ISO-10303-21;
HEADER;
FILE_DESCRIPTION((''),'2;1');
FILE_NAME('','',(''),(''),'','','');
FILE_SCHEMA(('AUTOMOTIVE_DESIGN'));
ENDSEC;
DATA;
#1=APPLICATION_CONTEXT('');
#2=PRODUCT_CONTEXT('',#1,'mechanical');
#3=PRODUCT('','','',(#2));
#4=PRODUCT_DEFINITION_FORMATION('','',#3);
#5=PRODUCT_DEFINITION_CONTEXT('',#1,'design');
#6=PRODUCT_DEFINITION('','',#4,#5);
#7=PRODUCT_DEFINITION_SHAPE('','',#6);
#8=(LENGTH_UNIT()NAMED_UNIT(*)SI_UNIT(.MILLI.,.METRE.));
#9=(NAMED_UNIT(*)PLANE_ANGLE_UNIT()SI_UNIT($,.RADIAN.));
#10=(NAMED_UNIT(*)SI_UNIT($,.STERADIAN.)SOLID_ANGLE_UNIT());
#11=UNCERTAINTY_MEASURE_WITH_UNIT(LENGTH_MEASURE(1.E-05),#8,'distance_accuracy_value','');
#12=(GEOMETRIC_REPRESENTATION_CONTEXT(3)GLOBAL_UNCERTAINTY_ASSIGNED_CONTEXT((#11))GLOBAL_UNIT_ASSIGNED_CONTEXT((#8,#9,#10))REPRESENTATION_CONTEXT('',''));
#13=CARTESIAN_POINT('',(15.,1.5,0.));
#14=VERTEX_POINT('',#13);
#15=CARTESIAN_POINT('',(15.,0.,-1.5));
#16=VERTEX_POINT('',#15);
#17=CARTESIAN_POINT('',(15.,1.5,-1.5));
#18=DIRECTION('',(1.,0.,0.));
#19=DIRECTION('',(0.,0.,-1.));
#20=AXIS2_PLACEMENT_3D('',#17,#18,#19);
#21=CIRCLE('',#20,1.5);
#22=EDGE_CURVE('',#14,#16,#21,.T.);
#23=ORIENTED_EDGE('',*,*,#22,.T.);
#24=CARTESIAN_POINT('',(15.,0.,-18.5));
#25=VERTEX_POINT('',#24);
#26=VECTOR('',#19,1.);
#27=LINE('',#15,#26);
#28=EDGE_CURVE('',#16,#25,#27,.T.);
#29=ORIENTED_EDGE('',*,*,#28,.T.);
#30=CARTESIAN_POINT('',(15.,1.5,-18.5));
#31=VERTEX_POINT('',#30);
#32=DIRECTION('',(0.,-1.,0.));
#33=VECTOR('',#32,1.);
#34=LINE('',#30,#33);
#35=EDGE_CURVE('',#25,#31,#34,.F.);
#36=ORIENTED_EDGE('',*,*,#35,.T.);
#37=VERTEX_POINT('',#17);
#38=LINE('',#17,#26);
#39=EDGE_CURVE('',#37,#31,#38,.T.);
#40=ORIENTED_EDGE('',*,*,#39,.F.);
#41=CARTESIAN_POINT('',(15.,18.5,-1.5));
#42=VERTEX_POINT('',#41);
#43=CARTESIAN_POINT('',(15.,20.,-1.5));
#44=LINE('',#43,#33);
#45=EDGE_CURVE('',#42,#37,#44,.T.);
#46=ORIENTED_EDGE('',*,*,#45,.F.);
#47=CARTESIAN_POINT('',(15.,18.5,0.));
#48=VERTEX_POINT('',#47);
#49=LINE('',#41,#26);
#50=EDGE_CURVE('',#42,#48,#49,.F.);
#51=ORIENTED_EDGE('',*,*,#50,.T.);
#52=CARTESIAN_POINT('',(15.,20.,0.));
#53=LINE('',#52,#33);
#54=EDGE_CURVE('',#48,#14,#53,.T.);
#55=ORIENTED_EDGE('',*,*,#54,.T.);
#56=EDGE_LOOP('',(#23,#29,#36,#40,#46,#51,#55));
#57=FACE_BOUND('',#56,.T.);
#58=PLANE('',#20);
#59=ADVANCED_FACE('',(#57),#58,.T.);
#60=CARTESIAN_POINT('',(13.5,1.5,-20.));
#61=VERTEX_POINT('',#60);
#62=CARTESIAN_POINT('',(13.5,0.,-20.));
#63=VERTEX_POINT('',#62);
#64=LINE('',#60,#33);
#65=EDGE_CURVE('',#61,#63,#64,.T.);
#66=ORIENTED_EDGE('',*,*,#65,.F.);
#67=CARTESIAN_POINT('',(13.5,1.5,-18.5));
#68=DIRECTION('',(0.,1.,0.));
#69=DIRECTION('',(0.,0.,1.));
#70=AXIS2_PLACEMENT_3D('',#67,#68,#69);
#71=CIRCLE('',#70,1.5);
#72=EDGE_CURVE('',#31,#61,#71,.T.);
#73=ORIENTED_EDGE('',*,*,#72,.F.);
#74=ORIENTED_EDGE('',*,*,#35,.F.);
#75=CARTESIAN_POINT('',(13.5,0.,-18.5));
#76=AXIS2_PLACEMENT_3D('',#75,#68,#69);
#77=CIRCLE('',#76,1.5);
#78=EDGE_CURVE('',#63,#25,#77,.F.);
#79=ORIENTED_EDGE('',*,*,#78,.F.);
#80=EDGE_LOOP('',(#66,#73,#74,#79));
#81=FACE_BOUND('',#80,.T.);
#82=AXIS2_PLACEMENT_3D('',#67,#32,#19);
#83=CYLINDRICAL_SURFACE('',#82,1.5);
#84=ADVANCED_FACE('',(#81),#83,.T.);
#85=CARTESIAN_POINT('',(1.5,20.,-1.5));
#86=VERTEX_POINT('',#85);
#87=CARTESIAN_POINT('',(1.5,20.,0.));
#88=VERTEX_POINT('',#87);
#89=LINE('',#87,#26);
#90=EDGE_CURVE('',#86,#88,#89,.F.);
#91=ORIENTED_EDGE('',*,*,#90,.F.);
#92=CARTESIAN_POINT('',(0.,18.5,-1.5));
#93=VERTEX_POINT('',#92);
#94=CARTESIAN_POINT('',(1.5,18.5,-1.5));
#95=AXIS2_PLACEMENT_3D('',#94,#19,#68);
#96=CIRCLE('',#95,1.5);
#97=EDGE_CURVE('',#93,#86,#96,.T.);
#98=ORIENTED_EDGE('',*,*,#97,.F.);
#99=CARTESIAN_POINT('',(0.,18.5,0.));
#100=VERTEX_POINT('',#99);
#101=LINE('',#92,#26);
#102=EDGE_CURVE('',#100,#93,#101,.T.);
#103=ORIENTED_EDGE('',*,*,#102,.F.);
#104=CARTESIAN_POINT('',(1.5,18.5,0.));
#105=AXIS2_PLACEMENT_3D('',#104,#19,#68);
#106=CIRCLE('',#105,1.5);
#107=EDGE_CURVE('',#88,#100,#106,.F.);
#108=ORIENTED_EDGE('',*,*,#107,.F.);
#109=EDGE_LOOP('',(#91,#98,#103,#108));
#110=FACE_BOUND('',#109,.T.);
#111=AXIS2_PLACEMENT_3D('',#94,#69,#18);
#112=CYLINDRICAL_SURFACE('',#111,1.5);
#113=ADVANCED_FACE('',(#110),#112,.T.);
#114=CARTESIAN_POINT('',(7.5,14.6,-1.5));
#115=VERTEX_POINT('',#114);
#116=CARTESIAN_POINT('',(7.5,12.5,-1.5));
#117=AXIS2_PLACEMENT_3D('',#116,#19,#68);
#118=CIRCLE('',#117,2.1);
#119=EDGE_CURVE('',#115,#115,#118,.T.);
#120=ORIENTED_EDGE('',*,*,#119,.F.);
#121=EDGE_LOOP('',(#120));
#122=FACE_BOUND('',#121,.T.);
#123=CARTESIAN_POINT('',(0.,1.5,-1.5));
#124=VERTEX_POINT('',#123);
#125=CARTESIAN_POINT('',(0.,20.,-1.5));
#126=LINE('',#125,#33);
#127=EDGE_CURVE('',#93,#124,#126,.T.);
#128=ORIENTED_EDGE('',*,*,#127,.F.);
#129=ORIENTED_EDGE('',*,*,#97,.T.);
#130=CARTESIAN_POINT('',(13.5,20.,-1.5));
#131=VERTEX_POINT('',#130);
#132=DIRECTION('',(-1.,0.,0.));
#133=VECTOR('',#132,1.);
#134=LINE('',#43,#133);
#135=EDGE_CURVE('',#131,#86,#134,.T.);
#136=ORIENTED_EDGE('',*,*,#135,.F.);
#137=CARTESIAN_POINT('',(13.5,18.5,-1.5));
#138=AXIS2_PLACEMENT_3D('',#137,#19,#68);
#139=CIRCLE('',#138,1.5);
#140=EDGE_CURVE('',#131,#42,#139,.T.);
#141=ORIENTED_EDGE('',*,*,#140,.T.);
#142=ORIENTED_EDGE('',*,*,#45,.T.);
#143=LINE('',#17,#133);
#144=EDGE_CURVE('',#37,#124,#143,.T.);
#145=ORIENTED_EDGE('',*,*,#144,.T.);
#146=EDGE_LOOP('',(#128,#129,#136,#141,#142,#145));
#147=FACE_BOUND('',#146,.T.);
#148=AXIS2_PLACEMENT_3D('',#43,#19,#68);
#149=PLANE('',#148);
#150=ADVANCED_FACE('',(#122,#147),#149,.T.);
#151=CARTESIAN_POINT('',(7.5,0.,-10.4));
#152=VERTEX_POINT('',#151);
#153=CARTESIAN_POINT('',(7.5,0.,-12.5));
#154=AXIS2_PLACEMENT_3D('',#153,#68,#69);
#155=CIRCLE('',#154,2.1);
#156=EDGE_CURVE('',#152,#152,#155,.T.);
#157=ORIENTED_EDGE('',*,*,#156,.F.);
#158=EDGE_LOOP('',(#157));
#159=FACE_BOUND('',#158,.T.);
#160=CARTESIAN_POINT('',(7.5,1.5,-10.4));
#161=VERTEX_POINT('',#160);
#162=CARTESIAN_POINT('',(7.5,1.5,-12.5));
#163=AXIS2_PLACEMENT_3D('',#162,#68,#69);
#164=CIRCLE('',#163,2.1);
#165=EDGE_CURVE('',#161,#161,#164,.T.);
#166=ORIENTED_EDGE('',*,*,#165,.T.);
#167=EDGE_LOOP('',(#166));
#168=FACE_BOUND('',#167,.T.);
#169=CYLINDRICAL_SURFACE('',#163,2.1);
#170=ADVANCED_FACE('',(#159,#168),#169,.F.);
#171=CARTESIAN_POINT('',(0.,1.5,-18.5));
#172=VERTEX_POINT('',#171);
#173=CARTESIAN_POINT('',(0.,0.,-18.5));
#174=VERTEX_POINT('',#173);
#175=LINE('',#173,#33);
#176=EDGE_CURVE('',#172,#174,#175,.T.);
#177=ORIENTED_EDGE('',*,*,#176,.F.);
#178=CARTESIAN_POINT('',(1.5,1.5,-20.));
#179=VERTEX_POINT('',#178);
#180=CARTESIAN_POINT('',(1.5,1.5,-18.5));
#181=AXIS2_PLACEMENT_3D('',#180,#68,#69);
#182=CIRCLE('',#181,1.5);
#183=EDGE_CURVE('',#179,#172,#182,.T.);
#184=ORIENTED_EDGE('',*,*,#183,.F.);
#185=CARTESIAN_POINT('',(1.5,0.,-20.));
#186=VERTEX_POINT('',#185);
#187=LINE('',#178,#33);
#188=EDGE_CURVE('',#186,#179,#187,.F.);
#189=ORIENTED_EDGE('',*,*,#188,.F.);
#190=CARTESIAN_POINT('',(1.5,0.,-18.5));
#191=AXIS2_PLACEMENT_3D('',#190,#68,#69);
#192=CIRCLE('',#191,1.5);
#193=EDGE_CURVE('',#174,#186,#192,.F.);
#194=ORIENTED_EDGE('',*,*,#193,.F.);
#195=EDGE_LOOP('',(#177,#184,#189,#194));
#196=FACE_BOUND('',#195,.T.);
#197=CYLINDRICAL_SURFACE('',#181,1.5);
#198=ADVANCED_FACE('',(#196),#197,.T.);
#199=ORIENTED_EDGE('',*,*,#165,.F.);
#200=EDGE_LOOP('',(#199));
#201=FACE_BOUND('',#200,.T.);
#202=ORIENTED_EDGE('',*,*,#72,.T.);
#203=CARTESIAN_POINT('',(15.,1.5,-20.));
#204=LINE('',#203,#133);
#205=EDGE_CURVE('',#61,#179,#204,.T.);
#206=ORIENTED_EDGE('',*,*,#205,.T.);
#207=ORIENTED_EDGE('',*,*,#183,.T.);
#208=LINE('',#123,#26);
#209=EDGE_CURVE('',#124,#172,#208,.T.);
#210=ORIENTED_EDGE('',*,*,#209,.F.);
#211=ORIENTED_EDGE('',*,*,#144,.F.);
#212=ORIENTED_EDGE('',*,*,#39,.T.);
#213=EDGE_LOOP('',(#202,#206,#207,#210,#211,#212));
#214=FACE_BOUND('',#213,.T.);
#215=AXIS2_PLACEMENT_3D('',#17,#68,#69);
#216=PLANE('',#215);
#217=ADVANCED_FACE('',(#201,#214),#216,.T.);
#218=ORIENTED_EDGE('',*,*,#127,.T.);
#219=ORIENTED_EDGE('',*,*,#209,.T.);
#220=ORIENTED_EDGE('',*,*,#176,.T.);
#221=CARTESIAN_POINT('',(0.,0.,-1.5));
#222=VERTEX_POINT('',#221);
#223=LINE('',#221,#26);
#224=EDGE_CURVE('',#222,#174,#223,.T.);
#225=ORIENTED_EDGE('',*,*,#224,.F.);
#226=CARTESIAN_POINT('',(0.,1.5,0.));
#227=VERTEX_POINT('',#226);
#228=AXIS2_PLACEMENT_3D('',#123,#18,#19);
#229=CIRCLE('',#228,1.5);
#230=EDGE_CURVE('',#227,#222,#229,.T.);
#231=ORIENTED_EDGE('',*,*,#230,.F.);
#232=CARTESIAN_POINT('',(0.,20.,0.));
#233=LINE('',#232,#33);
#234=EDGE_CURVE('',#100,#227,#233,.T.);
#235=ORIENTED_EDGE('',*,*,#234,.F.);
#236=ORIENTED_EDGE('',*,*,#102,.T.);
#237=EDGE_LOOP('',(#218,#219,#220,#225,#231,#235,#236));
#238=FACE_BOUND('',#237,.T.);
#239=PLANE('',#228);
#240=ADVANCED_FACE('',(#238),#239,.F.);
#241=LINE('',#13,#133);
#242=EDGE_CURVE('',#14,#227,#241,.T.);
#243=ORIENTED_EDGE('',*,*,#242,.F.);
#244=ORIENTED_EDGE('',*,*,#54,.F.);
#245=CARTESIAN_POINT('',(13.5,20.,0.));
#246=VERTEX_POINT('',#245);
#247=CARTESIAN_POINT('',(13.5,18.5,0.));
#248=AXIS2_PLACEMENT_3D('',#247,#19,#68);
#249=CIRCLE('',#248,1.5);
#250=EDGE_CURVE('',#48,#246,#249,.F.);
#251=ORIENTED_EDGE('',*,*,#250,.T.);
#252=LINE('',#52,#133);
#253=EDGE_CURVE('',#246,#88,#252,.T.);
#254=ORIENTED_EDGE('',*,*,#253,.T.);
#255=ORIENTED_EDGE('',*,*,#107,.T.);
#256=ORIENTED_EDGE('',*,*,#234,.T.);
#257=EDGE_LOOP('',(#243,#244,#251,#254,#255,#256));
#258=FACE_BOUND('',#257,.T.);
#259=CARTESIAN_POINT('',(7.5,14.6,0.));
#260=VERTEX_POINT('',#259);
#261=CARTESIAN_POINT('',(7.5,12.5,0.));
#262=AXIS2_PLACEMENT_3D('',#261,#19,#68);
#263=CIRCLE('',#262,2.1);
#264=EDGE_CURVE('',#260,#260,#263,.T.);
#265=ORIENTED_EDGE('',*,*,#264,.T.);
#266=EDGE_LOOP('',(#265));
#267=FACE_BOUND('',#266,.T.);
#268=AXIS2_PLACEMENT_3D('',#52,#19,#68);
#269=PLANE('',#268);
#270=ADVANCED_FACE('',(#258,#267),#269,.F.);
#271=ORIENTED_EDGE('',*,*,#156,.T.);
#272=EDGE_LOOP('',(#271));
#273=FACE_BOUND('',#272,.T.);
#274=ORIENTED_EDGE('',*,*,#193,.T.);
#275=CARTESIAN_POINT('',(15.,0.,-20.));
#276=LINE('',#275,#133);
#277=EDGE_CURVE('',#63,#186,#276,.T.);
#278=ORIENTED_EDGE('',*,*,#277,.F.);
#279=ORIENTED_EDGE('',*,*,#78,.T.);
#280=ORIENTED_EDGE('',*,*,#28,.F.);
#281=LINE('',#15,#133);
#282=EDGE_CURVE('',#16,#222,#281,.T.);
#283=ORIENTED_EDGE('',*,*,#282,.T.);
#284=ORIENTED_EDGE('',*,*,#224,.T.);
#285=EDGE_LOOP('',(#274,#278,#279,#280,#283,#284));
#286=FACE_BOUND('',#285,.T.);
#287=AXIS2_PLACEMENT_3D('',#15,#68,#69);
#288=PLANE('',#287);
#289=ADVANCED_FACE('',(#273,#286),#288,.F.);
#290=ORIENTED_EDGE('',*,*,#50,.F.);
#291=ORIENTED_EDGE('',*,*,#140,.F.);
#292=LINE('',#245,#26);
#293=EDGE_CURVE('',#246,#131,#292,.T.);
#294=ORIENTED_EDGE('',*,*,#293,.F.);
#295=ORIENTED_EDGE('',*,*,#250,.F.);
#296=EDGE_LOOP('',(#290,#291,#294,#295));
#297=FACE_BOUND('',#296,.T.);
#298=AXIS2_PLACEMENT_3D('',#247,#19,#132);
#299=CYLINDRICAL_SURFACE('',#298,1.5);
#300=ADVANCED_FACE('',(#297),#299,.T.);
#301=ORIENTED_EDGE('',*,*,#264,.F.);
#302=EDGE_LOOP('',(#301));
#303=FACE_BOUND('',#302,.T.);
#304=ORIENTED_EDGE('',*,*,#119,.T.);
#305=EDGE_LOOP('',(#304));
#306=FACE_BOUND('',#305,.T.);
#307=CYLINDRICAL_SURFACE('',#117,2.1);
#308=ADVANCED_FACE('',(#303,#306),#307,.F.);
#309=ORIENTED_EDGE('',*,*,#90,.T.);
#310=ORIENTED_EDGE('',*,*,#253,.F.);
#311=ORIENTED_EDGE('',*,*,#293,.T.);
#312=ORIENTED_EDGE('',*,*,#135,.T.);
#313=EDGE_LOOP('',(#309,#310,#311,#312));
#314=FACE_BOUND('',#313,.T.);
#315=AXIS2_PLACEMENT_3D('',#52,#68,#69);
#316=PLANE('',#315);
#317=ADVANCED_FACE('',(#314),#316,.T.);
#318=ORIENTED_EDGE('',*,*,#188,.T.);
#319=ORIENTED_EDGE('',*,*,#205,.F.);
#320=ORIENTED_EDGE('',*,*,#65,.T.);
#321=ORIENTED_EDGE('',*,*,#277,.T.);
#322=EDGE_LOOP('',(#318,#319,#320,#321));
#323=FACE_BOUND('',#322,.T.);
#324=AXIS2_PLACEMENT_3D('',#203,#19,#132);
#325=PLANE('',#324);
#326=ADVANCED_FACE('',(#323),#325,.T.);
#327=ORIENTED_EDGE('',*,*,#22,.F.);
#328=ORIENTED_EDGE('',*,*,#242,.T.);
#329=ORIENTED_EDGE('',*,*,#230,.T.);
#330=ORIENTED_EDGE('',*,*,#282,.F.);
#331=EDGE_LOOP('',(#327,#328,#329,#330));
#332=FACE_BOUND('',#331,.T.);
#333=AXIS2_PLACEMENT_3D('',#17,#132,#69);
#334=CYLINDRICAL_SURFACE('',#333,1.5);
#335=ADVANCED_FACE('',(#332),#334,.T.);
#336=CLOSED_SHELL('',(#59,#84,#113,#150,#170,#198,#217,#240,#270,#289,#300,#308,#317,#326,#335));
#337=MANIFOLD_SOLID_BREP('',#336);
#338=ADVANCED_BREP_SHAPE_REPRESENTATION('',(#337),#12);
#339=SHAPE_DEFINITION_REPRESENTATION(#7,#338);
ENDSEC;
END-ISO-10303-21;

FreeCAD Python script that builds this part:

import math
import FreeCAD as App
import Part
import Sketcher
from FreeCAD import Vector


def edges_at(feature, points):
    """Names of the edges that pass closest to the given points."""
    edges = feature.Shape.Edges
    near = lambda p: min(range(len(edges)), key=lambda i: edges[i].distToShape(Part.Vertex(*p))[0])
    return sorted({f"Edge{near(p) + 1}" for p in points})

doc = App.newDocument("Part")
params = doc.addObject("Spreadsheet::Sheet", "Params")
for row, (alias, value) in enumerate([
    ("sketch1_radius", "1.5 mm"),
    ("sketch1_width", "18.5 mm"),
    ("pad1_length", "15 mm"),
    ("sketch2_diameter", "4.2 mm"),
    ("hole_diameter", "4.2 mm"),
    ("sketch3_diameter", "4.2 mm"),
    ("hole2_diameter", "4.2 mm"),
    ("fillet_radius", "1.5 mm"),
], start=1):
    params.set(f"A{row}", alias)
    params.set(f"B{row}", "=" + value)
    params.setAlias(f"B{row}", alias)

body = doc.addObject("PartDesign::Body", "Body")

sketch1 = body.newObject("Sketcher::SketchObject", "Sketch")
sketch1.AttachmentSupport = (doc.getObject("YZ_Plane"), [""])
sketch1.MapMode = "FlatFace"
sketch1.addGeometry([
    Part.LineSegment(Vector(20, 0, 0), Vector(1.5, 0, 0)),
    Part.ArcOfCircle(Part.Circle(Vector(1.5, -1.5, 0), Vector(0, 0, 1), 1.5), math.radians(90), math.radians(180)),
    Part.LineSegment(Vector(0, -1.5, 0), Vector(0, -20, 0)),
    Part.LineSegment(Vector(0, -20, 0), Vector(1.5, -20, 0)),
    Part.LineSegment(Vector(1.5, -20, 0), Vector(1.5, -1.5, 0)),
    Part.LineSegment(Vector(1.5, -1.5, 0), Vector(20, -1.5, 0)),
    Part.LineSegment(Vector(20, -1.5, 0), Vector(20, 0, 0)),
], False)
sketch1.addConstraint([
    Sketcher.Constraint("Tangent", 0, 2, 1, 1),
    Sketcher.Constraint("Tangent", 1, 2, 2, 1),
    Sketcher.Constraint("Coincident", 2, 2, 3, 1),
    Sketcher.Constraint("Coincident", 3, 2, 4, 1),
    Sketcher.Constraint("Coincident", 4, 2, 5, 1),
    Sketcher.Constraint("Coincident", 5, 2, 6, 1),
    Sketcher.Constraint("Coincident", 6, 2, 0, 1),
    Sketcher.Constraint("Horizontal", 0),
    Sketcher.Constraint("Vertical", 2),
    Sketcher.Constraint("Horizontal", 3),
    Sketcher.Constraint("Vertical", 4),
    Sketcher.Constraint("Horizontal", 5),
    Sketcher.Constraint("Vertical", 6),
    Sketcher.Constraint("Coincident", 4, 2, 1, 3),
    Sketcher.Constraint("PointOnObject", 0, 2, -1),
    Sketcher.Constraint("PointOnObject", 1, 2, -2),
    Sketcher.Constraint("Equal", 5, 2),
    Sketcher.Constraint("Radius", 1, 1.5),
    Sketcher.Constraint("DistanceX", 0, 2, 0, 1, 18.5),
])
sketch1.setExpression("Constraints[17]", "Params.sketch1_radius")
sketch1.setExpression("Constraints[18]", "Params.sketch1_width")
pad1 = body.newObject("PartDesign::Pad", "Pad")
pad1.Profile = sketch1
pad1.setExpression("Length", "Params.pad1_length")

sketch2 = body.newObject("Sketcher::SketchObject", "Sketch001")
sketch2.AttachmentSupport = (doc.getObject("XZ_Plane"), [""])
sketch2.MapMode = "FlatFace"
sketch2.AttachmentOffset = App.Placement(Vector(0, 0, -1.5), App.Rotation())
sketch2.addGeometry(Part.Circle(Vector(7.5, -12.5, 0), Vector(0, 0, 1), 2.1), False)
sketch2.addConstraint([
    Sketcher.Constraint("Diameter", 0, 4.2),
    Sketcher.Constraint("DistanceX", -1, 1, 0, 3, 7.5),
    Sketcher.Constraint("DistanceY", 0, 3, -1, 1, 12.5),
])
sketch2.setExpression("Constraints[0]", "Params.sketch2_diameter")
doc.recompute()
hole = body.newObject("PartDesign::Hole", "Hole")
hole.Profile = sketch2
hole.ThreadType = "None"
hole.setExpression("Diameter", "Params.hole_diameter")
hole.DepthType = "ThroughAll"
hole.Reversed = True

sketch3 = body.newObject("Sketcher::SketchObject", "Sketch002")
sketch3.AttachmentSupport = (doc.getObject("XY_Plane"), [""])
sketch3.MapMode = "FlatFace"
sketch3.AttachmentOffset = App.Placement(Vector(0, 0, -1.5), App.Rotation())
sketch3.addGeometry(Part.Circle(Vector(7.5, 12.5, 0), Vector(0, 0, 1), 2.1), False)
sketch3.addConstraint([
    Sketcher.Constraint("Diameter", 0, 4.2),
    Sketcher.Constraint("DistanceX", -1, 1, 0, 3, 7.5),
    Sketcher.Constraint("DistanceY", -1, 1, 0, 3, 12.5),
])
sketch3.setExpression("Constraints[0]", "Params.sketch3_diameter")
doc.recompute()
hole2 = body.newObject("PartDesign::Hole", "Hole001")
hole2.Profile = sketch3
hole2.ThreadType = "None"
hole2.setExpression("Diameter", "Params.hole2_diameter")
hole2.DepthType = "ThroughAll"
hole2.Reversed = True
doc.recompute()

fillet = body.newObject("PartDesign::Fillet", "Fillet")
fillet.Base = (hole2, edges_at(hole2, [
    (15, 20, -0.75),
    (0, 20, -0.75),
    (15, 0.75, -20),
    (0, 0.75, -20),
]))
fillet.setExpression("Radius", "Params.fillet_radius")

doc.recompute()
